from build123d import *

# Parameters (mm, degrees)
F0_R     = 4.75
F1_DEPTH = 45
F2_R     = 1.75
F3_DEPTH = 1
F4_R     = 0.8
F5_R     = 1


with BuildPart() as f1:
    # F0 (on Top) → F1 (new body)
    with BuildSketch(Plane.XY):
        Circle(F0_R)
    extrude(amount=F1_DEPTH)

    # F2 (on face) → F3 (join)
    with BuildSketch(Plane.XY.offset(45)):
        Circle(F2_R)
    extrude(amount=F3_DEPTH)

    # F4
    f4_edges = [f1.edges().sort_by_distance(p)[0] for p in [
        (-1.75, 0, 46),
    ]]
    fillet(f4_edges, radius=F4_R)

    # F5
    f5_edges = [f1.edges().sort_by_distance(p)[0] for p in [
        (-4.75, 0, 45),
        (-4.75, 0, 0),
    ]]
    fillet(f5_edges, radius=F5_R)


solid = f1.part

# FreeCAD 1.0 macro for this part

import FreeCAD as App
import Part
import Sketcher


def edges_at(feature, points):
    """Names of the edges that pass closest to the given points."""
    edges = feature.Shape.Edges
    near = lambda p: min(range(len(edges)), key=lambda i: edges[i].distToShape(Part.Vertex(*p))[0])
    return sorted({f"Edge{near(p) + 1}" for p in points})

doc = App.newDocument("Part")
body = doc.addObject("PartDesign::Body", "Body")

# Sketch on XY plane
sketch1 = doc.addObject("Sketcher::SketchObject", "Sketch")
body.addObject(sketch1)
sketch1.AttachmentSupport = (doc.XY_Plane, [""])
sketch1.MapMode = "FlatFace"
sketch1.addGeometry(Part.Circle(App.Vector(0, 0, 0), App.Vector(0, 0, 1), 4.8), False)
sketch1.addConstraint(Sketcher.Constraint("Coincident", 0, 3, -1, 1))
sketch1.addConstraint(Sketcher.Constraint("Diameter", 0, 9.5))
pad1 = doc.addObject("PartDesign::Pad", "Pad")
body.addObject(pad1)
pad1.Profile = sketch1
pad1.Length = 45

# Sketch on XY plane
sketch2 = doc.addObject("Sketcher::SketchObject", "Sketch001")
body.addObject(sketch2)
sketch2.AttachmentSupport = (doc.XY_Plane, [""])
sketch2.MapMode = "FlatFace"
sketch2.AttachmentOffset = App.Placement(App.Vector(0, 0, 45), App.Rotation())
sketch2.addGeometry(Part.Circle(App.Vector(0, 0, 0), App.Vector(0, 0, 1), 1.8), False)
sketch2.addConstraint(Sketcher.Constraint("Coincident", 0, 3, -1, 1))
sketch2.addConstraint(Sketcher.Constraint("Diameter", 0, 3.5))
pad2 = doc.addObject("PartDesign::Pad", "Pad001")
body.addObject(pad2)
pad2.Profile = sketch2
pad2.Length = 1
doc.recompute()

fillet = doc.addObject("PartDesign::Fillet", "Fillet")
body.addObject(fillet)
fillet.Base = (pad2, edges_at(pad2, [(-1.75, 0, 46)]))
fillet.Radius = 0.8
doc.recompute()

fillet2 = doc.addObject("PartDesign::Fillet", "Fillet001")
body.addObject(fillet2)
fillet2.Base = (fillet, edges_at(fillet, [(-4.75, 0, 45), (-4.75, 0, 0)]))
fillet2.Radius = 1

doc.recompute()
